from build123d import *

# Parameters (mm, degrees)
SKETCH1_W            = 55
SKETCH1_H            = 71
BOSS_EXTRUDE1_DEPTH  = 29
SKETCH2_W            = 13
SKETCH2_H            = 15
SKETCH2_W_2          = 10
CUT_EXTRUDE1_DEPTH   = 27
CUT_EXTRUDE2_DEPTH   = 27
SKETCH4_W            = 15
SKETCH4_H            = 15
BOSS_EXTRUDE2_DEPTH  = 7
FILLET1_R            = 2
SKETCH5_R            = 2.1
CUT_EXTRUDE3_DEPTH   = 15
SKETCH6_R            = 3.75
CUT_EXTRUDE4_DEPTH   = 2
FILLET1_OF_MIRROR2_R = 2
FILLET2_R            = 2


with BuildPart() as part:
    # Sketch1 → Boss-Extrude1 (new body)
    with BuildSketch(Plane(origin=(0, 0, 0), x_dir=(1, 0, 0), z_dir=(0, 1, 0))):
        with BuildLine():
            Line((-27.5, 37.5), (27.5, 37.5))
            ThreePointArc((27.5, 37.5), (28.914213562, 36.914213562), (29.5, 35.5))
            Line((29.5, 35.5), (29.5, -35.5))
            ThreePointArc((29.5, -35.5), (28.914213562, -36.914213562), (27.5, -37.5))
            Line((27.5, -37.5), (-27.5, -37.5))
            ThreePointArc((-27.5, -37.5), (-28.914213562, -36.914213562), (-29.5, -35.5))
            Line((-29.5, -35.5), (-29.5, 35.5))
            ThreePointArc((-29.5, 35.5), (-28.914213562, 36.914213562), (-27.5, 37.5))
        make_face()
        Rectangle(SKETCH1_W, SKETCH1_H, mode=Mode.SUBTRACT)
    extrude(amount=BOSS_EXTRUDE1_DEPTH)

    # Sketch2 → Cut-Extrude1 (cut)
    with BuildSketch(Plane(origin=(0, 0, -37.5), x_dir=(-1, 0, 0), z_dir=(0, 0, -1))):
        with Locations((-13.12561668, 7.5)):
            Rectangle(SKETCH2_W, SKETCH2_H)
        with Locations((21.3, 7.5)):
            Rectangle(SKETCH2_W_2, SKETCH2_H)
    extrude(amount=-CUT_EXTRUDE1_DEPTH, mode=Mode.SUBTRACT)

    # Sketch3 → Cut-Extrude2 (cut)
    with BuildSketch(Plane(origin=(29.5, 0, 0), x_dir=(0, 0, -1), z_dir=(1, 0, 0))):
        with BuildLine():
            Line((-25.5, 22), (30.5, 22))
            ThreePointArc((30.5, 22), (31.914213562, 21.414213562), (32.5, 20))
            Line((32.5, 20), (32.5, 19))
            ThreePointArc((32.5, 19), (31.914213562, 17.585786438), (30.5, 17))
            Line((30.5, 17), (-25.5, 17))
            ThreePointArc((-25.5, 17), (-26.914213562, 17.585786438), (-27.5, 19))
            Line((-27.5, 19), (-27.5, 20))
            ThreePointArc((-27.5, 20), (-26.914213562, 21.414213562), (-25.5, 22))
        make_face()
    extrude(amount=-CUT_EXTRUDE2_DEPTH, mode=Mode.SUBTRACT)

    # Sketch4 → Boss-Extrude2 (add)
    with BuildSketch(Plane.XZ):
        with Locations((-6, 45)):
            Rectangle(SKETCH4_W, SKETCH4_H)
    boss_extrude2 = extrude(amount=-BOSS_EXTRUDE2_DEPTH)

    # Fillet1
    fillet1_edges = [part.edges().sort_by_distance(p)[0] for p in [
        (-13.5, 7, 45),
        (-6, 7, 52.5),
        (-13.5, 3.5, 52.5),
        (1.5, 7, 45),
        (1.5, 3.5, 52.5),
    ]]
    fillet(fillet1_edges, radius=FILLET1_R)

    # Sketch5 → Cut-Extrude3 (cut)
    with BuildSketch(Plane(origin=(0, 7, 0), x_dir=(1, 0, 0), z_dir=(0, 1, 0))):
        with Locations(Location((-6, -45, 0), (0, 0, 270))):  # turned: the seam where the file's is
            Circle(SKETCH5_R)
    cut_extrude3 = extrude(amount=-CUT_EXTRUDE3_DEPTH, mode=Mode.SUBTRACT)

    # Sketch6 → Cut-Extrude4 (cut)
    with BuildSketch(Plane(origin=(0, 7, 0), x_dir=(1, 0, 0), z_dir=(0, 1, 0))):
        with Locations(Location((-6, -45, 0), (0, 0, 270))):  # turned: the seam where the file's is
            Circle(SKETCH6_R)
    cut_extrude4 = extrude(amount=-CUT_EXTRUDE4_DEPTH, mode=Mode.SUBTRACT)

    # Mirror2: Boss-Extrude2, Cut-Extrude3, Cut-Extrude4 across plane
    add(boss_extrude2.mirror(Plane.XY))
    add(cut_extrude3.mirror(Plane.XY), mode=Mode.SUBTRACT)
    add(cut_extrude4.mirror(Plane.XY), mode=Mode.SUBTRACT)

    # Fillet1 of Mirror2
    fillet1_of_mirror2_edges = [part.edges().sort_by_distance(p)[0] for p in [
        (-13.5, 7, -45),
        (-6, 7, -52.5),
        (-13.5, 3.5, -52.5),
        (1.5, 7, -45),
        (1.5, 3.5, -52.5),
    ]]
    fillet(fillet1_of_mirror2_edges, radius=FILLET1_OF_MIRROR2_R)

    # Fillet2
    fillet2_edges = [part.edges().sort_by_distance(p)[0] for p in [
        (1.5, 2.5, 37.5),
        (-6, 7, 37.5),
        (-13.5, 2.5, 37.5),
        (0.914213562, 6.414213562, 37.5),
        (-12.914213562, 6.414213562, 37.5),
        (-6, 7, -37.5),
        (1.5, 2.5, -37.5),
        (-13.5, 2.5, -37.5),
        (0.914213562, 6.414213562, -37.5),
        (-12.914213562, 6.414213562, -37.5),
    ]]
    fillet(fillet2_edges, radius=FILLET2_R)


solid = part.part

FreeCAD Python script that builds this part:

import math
import FreeCAD as App
import Part
import Sketcher

V = App.Vector


def edges_at(feature, points):
    """Names of the edges that pass closest to the given points."""
    edges = feature.Shape.Edges
    near = lambda p: min(range(len(edges)), key=lambda i: edges[i].distToShape(Part.Vertex(*p))[0])
    return sorted({f"Edge{near(p) + 1}" for p in points})


def add_polygon(sketch, points):
    """Adds a closed chain of lines whose ends are joined by coincident constraints."""
    first, n = sketch.GeometryCount, len(points)
    for a, b in zip(points, points[1:] + points[:1]):
        sketch.addGeometry(Part.LineSegment(App.Vector(*a, 0), App.Vector(*b, 0)), False)
    for i in range(n):
        sketch.addConstraint(Sketcher.Constraint("Coincident", first + i, 2, first + (i + 1) % n, 1))

doc = App.newDocument("Part")
body = doc.addObject("PartDesign::Body", "Body")

# Sketch on XZ plane
sketch1 = doc.addObject("Sketcher::SketchObject", "Sketch")
body.addObject(sketch1)
sketch1.AttachmentSupport = (doc.XZ_Plane, [""])
sketch1.MapMode = "FlatFace"
sketch1.addGeometry(Part.LineSegment(V(27.5, -37.5, 0), V(-27.5, -37.5, 0)), False)  # 0
sketch1.addGeometry(Part.ArcOfCircle(Part.Circle(V(-27.5, -35.5, 0), V(0, 0, 1), 2), math.radians(-180), math.radians(-90)), False)  # 1
sketch1.addGeometry(Part.LineSegment(V(-29.5, -35.5, 0), V(-29.5, 35.5, 0)), False)  # 2
sketch1.addGeometry(Part.ArcOfCircle(Part.Circle(V(-27.5, 35.5, 0), V(0, 0, 1), 2), math.radians(90), math.radians(180)), False)  # 3
sketch1.addGeometry(Part.LineSegment(V(-27.5, 37.5, 0), V(27.5, 37.5, 0)), False)  # 4
sketch1.addGeometry(Part.ArcOfCircle(Part.Circle(V(27.5, 35.5, 0), V(0, 0, 1), 2), math.radians(0), math.radians(90)), False)  # 5
sketch1.addGeometry(Part.LineSegment(V(29.5, 35.5, 0), V(29.5, -35.5, 0)), False)  # 6
sketch1.addGeometry(Part.ArcOfCircle(Part.Circle(V(27.5, -35.5, 0), V(0, 0, 1), 2), math.radians(-90), math.radians(0)), False)  # 7
add_polygon(sketch1, [(-27.5, 35.5), (-27.5, -35.5), (27.5, -35.5), (27.5, 35.5)])  # lines 8-11
sketch1.addConstraint([
    Sketcher.Constraint("Tangent", 0, 2, 1, 2),
    Sketcher.Constraint("Tangent", 1, 1, 2, 1),
    Sketcher.Constraint("Tangent", 2, 2, 3, 2),
    Sketcher.Constraint("Tangent", 3, 1, 4, 1),
    Sketcher.Constraint("Tangent", 4, 2, 5, 2),
    Sketcher.Constraint("Tangent", 5, 1, 6, 1),
    Sketcher.Constraint("Tangent", 6, 2, 7, 2),
    Sketcher.Constraint("Tangent", 7, 1, 0, 1),
    Sketcher.Constraint("Horizontal", 0),
    Sketcher.Constraint("Vertical", 2),
    Sketcher.Constraint("Horizontal", 4),
    Sketcher.Constraint("Vertical", 6),
    Sketcher.Constraint("Vertical", 8),
    Sketcher.Constraint("Horizontal", 9),
    Sketcher.Constraint("Vertical", 10),
    Sketcher.Constraint("Horizontal", 11),
    Sketcher.Constraint("Coincident", 8, 2, 1, 3),
    Sketcher.Constraint("Coincident", 9, 2, 7, 3),
    Sketcher.Constraint("Coincident", 10, 2, 5, 3),
    Sketcher.Constraint("Equal", 1, 3),
    Sketcher.Constraint("Symmetric", 1, 3, 5, 3, -1, 1),
    Sketcher.Constraint("Radius", 1, 2.0),
    Sketcher.Constraint("DistanceX", 0, 2, 0, 1, 55.0),
    Sketcher.Constraint("DistanceY", 2, 1, 2, 2, 71.0),
])
pad1 = doc.addObject("PartDesign::Pad", "Pad")
body.addObject(pad1)
pad1.Profile = sketch1
pad1.Length = 29
pad1.Reversed = True

# Sketch on XY plane
sketch2 = doc.addObject("Sketcher::SketchObject", "Sketch001")
body.addObject(sketch2)
sketch2.AttachmentSupport = (doc.XY_Plane, [""])
sketch2.MapMode = "FlatFace"
sketch2.AttachmentOffset = App.Placement(V(0, 0, -37.5), App.Rotation())
add_polygon(sketch2, [(20, 15), (20, 0), (7, 0), (7, 15)])  # lines 0-3
add_polygon(sketch2, [(-16, 15), (-16, 0), (-26, 0), (-26, 15)])  # lines 4-7
sketch2.addConstraint([
    Sketcher.Constraint("Vertical", 0),
    Sketcher.Constraint("Horizontal", 1),
    Sketcher.Constraint("Vertical", 2),
    Sketcher.Constraint("Horizontal", 3),
    Sketcher.Constraint("Vertical", 4),
    Sketcher.Constraint("Horizontal", 5),
    Sketcher.Constraint("Vertical", 6),
    Sketcher.Constraint("Horizontal", 7),
    Sketcher.Constraint("PointOnObject", 0, 2, -1),
    Sketcher.Constraint("PointOnObject", 4, 2, -1),
    Sketcher.Constraint("Horizontal", 3, 2, 6, 2),
    Sketcher.Constraint("DistanceX", 1, 2, 1, 1, 13.0),
    Sketcher.Constraint("DistanceX", 5, 2, 5, 1, 10.0),
    Sketcher.Constraint("DistanceY", 0, 2, 0, 1, 15.0),
    Sketcher.Constraint("DistanceX", 4, 2, -1, 1, 16.3),
    Sketcher.Constraint("DistanceX", -1, 1, 0, 2, 19.625617),
])
pocket1 = doc.addObject("PartDesign::Pocket", "Pocket")
body.addObject(pocket1)
pocket1.Profile = sketch2
pocket1.Length = 27
pocket1.Reversed = True

# Sketch on YZ plane
sketch3 = doc.addObject("Sketcher::SketchObject", "Sketch002")
body.addObject(sketch3)
sketch3.AttachmentSupport = (doc.YZ_Plane, [""])
sketch3.MapMode = "FlatFace"
sketch3.AttachmentOffset = App.Placement(V(0, 0, 29.5), App.Rotation())
sketch3.addGeometry([
    Part.LineSegment(V(22, -30.5, 0), V(22, 25.5, 0)),  # 0
    Part.ArcOfCircle(Part.Circle(V(20, 25.5, 0), V(0, 0, 1), 2), math.radians(0), math.radians(90)),  # 1
    Part.LineSegment(V(20, 27.5, 0), V(19, 27.5, 0)),  # 2
    Part.ArcOfCircle(Part.Circle(V(19, 25.5, 0), V(0, 0, 1), 2), math.radians(90), math.radians(180)),  # 3
    Part.LineSegment(V(17, 25.5, 0), V(17, -30.5, 0)),  # 4
    Part.ArcOfCircle(Part.Circle(V(19, -30.5, 0), V(0, 0, 1), 2), math.radians(-180), math.radians(-90)),  # 5
    Part.LineSegment(V(19, -32.5, 0), V(20, -32.5, 0)),  # 6
    Part.ArcOfCircle(Part.Circle(V(20, -30.5, 0), V(0, 0, 1), 2), math.radians(-90), math.radians(0)),  # 7
], False)
sketch3.addConstraint([
    Sketcher.Constraint("Tangent", 0, 2, 1, 1),
    Sketcher.Constraint("Tangent", 1, 2, 2, 1),
    Sketcher.Constraint("Tangent", 2, 2, 3, 1),
    Sketcher.Constraint("Tangent", 3, 2, 4, 1),
    Sketcher.Constraint("Tangent", 4, 2, 5, 1),
    Sketcher.Constraint("Tangent", 5, 2, 6, 1),
    Sketcher.Constraint("Tangent", 6, 2, 7, 1),
    Sketcher.Constraint("Tangent", 7, 2, 0, 1),
    Sketcher.Constraint("Vertical", 0),
    Sketcher.Constraint("Horizontal", 2),
    Sketcher.Constraint("Vertical", 4),
    Sketcher.Constraint("Horizontal", 6),
    Sketcher.Constraint("Equal", 1, 3),
    Sketcher.Constraint("Equal", 3, 5),
    Sketcher.Constraint("Equal", 5, 7),
    Sketcher.Constraint("Radius", 1, 2.0),
    Sketcher.Constraint("DistanceX", 2, 2, 2, 1, 1.0),
    Sketcher.Constraint("DistanceY", 0, 1, 0, 2, 56.0),
    Sketcher.Constraint("DistanceX", -1, 1, 1, 3, 20.0),
    Sketcher.Constraint("DistanceY", -1, 1, 1, 3, 25.5),
])
pocket2 = doc.addObject("PartDesign::Pocket", "Pocket001")
body.addObject(pocket2)
pocket2.Profile = sketch3
pocket2.Length = 27

# Sketch on XZ plane
sketch4 = doc.addObject("Sketcher::SketchObject", "Sketch003")
body.addObject(sketch4)
sketch4.AttachmentSupport = (doc.XZ_Plane, [""])
sketch4.MapMode = "FlatFace"
add_polygon(sketch4, [(-14, 52), (-14, 38), (2, 38), (2, 52)])  # lines 0-3
sketch4.addConstraint([
    Sketcher.Constraint("Vertical", 0),
    Sketcher.Constraint("Horizontal", 1),
    Sketcher.Constraint("Vertical", 2),
    Sketcher.Constraint("Horizontal", 3),
    Sketcher.Constraint("Equal", 3, 0),
    Sketcher.Constraint("DistanceX", 1, 1, 1, 2, 15.0),
    Sketcher.Constraint("DistanceX", 0, 2, -1, 1, 13.5),
    Sketcher.Constraint("DistanceY", -1, 1, 0, 2, 37.5),
])
pad2 = doc.addObject("PartDesign::Pad", "Pad001")
body.addObject(pad2)
pad2.Profile = sketch4
pad2.Length = 7
pad2.Reversed = True
doc.recompute()

fillet = doc.addObject("PartDesign::Fillet", "Fillet")
body.addObject(fillet)
fillet.Base = (pad2, edges_at(pad2, [
    (-13.5, 7, 45),
    (-6, 7, 52.5),
    (-13.5, 3.5, 52.5),
    (1.5, 7, 45),
    (1.5, 3.5, 52.5),
]))
fillet.Radius = 2

# Sketch on XZ plane
sketch5 = doc.addObject("Sketcher::SketchObject", "Sketch004")
body.addObject(sketch5)
sketch5.AttachmentSupport = (doc.XZ_Plane, [""])
sketch5.MapMode = "FlatFace"
sketch5.AttachmentOffset = App.Placement(V(0, 0, -7), App.Rotation())
sketch5.addGeometry(Part.Circle(V(-6, 45, 0), V(0, 0, 1), 2.1), False)
sketch5.addConstraint([
    Sketcher.Constraint("Diameter", 0, 4.2),
    Sketcher.Constraint("DistanceX", 0, 3, -1, 1, 6.0),
    Sketcher.Constraint("DistanceY", -1, 1, 0, 3, 45.0),
])
pocket3 = doc.addObject("PartDesign::Pocket", "Pocket002")
body.addObject(pocket3)
pocket3.Profile = sketch5
pocket3.Length = 15
pocket3.Reversed = True

# Sketch on XZ plane
sketch6 = doc.addObject("Sketcher::SketchObject", "Sketch005")
body.addObject(sketch6)
sketch6.AttachmentSupport = (doc.XZ_Plane, [""])
sketch6.MapMode = "FlatFace"
sketch6.AttachmentOffset = App.Placement(V(0, 0, -7), App.Rotation())
sketch6.addGeometry(Part.Circle(V(-6, 45, 0), V(0, 0, 1), 3.8), False)
sketch6.addConstraint([
    Sketcher.Constraint("Diameter", 0, 7.5),
    Sketcher.Constraint("DistanceX", 0, 3, -1, 1, 6.0),
    Sketcher.Constraint("DistanceY", -1, 1, 0, 3, 45.0),
])
pocket4 = doc.addObject("PartDesign::Pocket", "Pocket003")
body.addObject(pocket4)
pocket4.Profile = sketch6
pocket4.Length = 2
pocket4.Reversed = True
doc.recompute()

mirrored = doc.addObject("PartDesign::Mirrored", "Mirrored")
body.addObject(mirrored)
mirrored.Originals = [pad2, pocket3, pocket4]
mirrored.MirrorPlane = (doc.XY_Plane, [""])
body.Tip = mirrored
doc.recompute()

fillet2 = doc.addObject("PartDesign::Fillet", "Fillet001")
body.addObject(fillet2)
fillet2.Base = (mirrored, edges_at(mirrored, [
    (-13.5, 7, -45),
    (-6, 7, -52.5),
    (-13.5, 3.5, -52.5),
    (1.5, 7, -45),
    (1.5, 3.5, -52.5),
]))
fillet2.Radius = 2
doc.recompute()

fillet3 = doc.addObject("PartDesign::Fillet", "Fillet002")
body.addObject(fillet3)
fillet3.Base = (fillet2, edges_at(fillet2, [
    (1.5, 2.5, 37.5),
    (-6, 7, 37.5),
    (-13.5, 2.5, 37.5),
    (0.914, 6.414, 37.5),
    (-12.914, 6.414, 37.5),
    (-6, 7, -37.5),
    (1.5, 2.5, -37.5),
    (-13.5, 2.5, -37.5),
    (0.914, 6.414, -37.5),
    (-12.914, 6.414, -37.5),
]))
fillet3.Radius = 2

doc.recompute()
